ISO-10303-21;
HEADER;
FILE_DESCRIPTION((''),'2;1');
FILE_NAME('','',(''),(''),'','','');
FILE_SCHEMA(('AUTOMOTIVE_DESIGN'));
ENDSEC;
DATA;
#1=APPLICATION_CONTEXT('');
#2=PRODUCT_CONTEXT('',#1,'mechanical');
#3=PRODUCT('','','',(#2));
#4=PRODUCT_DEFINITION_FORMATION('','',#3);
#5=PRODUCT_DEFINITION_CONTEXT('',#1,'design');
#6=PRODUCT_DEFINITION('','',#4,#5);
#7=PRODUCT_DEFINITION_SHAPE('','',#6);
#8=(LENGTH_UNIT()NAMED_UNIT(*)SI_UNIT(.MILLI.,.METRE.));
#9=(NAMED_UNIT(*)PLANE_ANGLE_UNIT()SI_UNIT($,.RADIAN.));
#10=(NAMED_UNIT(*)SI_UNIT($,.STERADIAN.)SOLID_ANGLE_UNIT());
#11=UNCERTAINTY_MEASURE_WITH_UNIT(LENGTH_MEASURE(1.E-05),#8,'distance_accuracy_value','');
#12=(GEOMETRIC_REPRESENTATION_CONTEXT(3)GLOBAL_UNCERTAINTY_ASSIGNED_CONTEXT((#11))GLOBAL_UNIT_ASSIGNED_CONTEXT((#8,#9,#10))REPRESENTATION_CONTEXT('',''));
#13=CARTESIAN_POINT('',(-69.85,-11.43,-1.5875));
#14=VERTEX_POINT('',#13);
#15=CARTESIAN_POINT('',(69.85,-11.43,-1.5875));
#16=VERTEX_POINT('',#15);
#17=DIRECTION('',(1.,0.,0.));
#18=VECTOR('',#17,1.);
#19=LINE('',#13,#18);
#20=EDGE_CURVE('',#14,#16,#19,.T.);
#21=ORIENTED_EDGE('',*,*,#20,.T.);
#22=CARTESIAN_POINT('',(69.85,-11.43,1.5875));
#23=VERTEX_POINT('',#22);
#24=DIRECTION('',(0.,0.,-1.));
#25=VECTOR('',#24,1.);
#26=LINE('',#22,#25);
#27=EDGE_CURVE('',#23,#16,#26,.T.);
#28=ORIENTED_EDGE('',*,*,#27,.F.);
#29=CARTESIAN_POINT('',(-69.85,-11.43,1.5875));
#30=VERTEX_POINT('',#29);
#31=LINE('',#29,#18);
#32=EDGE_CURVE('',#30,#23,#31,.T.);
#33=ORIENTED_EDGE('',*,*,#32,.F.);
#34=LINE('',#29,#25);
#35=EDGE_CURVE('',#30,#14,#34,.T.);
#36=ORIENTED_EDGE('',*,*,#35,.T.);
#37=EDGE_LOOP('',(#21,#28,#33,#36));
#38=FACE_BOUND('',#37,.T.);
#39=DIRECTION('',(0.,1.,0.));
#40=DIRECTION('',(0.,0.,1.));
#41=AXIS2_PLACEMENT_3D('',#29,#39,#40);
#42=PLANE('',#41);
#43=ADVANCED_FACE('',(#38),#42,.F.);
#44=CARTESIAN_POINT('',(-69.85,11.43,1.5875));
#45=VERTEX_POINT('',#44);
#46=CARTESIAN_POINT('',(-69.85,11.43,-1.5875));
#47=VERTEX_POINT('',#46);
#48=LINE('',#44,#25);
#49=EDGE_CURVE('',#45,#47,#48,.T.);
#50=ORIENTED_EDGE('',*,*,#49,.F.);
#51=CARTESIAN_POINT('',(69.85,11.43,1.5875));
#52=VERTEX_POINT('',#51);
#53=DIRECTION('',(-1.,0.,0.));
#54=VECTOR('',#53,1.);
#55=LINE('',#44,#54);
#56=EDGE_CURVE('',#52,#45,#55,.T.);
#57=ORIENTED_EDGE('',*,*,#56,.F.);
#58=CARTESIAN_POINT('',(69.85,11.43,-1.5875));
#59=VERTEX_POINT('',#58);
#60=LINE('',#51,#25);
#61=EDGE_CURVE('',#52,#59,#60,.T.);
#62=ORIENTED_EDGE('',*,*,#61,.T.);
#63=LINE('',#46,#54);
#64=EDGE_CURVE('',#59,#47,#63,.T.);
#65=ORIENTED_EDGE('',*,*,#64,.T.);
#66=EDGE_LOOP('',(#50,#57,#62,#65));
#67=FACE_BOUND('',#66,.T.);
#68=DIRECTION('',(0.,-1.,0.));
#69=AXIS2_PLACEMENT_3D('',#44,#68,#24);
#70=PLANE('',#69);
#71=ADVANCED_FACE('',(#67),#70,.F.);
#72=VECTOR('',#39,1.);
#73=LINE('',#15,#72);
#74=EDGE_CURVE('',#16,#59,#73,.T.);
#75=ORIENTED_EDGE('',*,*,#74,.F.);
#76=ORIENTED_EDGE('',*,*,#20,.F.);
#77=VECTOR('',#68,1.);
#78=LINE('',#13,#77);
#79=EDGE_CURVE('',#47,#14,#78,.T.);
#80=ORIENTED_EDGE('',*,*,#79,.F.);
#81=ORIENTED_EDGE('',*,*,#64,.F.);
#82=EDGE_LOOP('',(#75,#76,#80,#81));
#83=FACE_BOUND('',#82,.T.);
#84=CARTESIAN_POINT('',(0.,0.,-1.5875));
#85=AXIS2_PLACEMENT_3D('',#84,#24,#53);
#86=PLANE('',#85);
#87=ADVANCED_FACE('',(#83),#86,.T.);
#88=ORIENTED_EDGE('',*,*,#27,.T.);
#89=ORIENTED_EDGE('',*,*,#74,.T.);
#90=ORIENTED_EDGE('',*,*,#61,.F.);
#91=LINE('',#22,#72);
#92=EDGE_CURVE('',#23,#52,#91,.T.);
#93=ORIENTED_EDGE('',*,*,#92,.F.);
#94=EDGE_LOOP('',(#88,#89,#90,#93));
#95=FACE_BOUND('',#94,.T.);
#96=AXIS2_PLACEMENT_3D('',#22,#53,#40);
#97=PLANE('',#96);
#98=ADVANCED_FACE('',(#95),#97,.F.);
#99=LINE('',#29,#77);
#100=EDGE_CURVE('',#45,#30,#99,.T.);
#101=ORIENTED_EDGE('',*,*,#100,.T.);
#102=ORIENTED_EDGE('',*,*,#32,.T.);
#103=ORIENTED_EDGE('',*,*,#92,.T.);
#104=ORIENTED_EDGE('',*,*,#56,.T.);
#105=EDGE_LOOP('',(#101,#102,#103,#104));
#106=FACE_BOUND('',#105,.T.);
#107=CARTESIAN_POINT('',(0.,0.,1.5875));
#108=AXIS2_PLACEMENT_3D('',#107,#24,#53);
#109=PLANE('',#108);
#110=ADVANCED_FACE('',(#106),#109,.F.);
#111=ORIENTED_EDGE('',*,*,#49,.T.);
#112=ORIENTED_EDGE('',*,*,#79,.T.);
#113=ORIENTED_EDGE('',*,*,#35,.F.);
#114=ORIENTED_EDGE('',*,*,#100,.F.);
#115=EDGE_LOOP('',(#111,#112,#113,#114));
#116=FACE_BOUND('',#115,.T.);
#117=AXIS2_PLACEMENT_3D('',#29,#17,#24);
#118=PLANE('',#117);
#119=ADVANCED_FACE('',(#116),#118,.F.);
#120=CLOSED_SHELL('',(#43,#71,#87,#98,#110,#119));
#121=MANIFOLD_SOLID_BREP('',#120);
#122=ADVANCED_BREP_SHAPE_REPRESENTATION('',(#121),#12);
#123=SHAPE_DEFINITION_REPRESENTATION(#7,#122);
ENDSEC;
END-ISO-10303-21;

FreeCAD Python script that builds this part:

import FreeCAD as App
import Part
import Sketcher
from FreeCAD import Vector
Q = App.Units.Quantity

doc = App.newDocument("Part")
body = doc.addObject("PartDesign::Body", "Body")

sketch1 = body.newObject("Sketcher::SketchObject", "Sketch")
sketch1.AttachmentSupport = (doc.getObject("XY_Plane"), [""])
sketch1.MapMode = "FlatFace"
sketch1.addGeometry([
    Part.LineSegment(Vector(-70, 11, 0), Vector(-70, -11, 0)),
    Part.LineSegment(Vector(-70, -11, 0), Vector(70, -11, 0)),
    Part.LineSegment(Vector(70, -11, 0), Vector(70, 11, 0)),
    Part.LineSegment(Vector(70, 11, 0), Vector(-70, 11, 0)),
], False)
sketch1.addConstraint([
    Sketcher.Constraint("Coincident", 0, 2, 1, 1),
    Sketcher.Constraint("Coincident", 1, 2, 2, 1),
    Sketcher.Constraint("Coincident", 2, 2, 3, 1),
    Sketcher.Constraint("Coincident", 3, 2, 0, 1),
    Sketcher.Constraint("Vertical", 0),
    Sketcher.Constraint("Horizontal", 1),
    Sketcher.Constraint("Vertical", 2),
    Sketcher.Constraint("Horizontal", 3),
    Sketcher.Constraint("Symmetric", 0, 2, 2, 2, -1, 1),
    Sketcher.Constraint("DistanceX", 1, 1, 1, 2, Q("5.5 in")),
    Sketcher.Constraint("DistanceY", 0, 2, 0, 1, Q("0.9 in")),
])
pad1 = body.newObject("PartDesign::Pad", "Pad")
pad1.Profile = sketch1
pad1.Length = Q("0.125 in")
pad1.Midplane = True

doc.recompute()
